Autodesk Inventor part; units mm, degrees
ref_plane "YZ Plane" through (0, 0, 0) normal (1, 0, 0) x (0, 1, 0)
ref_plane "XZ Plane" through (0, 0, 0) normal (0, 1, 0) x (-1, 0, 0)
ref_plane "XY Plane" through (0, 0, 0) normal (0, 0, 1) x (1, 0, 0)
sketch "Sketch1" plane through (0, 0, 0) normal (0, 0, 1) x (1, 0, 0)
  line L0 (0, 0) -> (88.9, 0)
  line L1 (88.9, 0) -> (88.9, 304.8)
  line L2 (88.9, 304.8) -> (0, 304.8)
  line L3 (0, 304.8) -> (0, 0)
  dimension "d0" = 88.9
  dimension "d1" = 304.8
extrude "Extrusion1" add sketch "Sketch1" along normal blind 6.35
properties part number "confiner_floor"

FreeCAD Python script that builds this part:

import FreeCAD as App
import Part
import Sketcher
Q = App.Units.Quantity

doc = App.newDocument("Part")
params = doc.addObject("Spreadsheet::Sheet", "Params")
for row, (alias, value) in enumerate([
    ("sketch1_height", "12 in"),
    ("sketch1_width", "3.5 in"),
    ("pad1_length", "0.25 in"),
], start=1):
    params.set(f"A{row}", alias)
    params.set(f"B{row}", "=" + value)
    params.setAlias(f"B{row}", alias)

body = doc.addObject("PartDesign::Body", "Body")

sketch1 = body.newObject("Sketcher::SketchObject", "Sketch")
sketch1.AttachmentSupport = (doc.getObject("XY_Plane"), [""])
sketch1.MapMode = "FlatFace"
sketch1.addGeometry([
    Part.LineSegment(App.Vector(0, 305, 0), App.Vector(0, 0, 0)),
    Part.LineSegment(App.Vector(0, 0, 0), App.Vector(89, 0, 0)),
    Part.LineSegment(App.Vector(89, 0, 0), App.Vector(89, 305, 0)),
    Part.LineSegment(App.Vector(89, 305, 0), App.Vector(0, 305, 0)),
], False)
sketch1.addConstraint([
    Sketcher.Constraint("Coincident", 0, 2, 1, 1),
    Sketcher.Constraint("Coincident", 1, 2, 2, 1),
    Sketcher.Constraint("Coincident", 2, 2, 3, 1),
    Sketcher.Constraint("Coincident", 3, 2, 0, 1),
    Sketcher.Constraint("Vertical", 0),
    Sketcher.Constraint("Horizontal", 1),
    Sketcher.Constraint("Vertical", 2),
    Sketcher.Constraint("Horizontal", 3),
    Sketcher.Constraint("Coincident", 0, 2, -1, 1),
    Sketcher.Constraint("DistanceY", 0, 2, 0, 1, Q("12 in")),
    Sketcher.Constraint("DistanceX", 1, 1, 1, 2, Q("3.5 in")),
])
sketch1.setExpression("Constraints[9]", "Params.sketch1_height")
sketch1.setExpression("Constraints[10]", "Params.sketch1_width")
pad1 = body.newObject("PartDesign::Pad", "Pad")
pad1.Profile = sketch1
pad1.setExpression("Length", "Params.pad1_length")

doc.recompute()
